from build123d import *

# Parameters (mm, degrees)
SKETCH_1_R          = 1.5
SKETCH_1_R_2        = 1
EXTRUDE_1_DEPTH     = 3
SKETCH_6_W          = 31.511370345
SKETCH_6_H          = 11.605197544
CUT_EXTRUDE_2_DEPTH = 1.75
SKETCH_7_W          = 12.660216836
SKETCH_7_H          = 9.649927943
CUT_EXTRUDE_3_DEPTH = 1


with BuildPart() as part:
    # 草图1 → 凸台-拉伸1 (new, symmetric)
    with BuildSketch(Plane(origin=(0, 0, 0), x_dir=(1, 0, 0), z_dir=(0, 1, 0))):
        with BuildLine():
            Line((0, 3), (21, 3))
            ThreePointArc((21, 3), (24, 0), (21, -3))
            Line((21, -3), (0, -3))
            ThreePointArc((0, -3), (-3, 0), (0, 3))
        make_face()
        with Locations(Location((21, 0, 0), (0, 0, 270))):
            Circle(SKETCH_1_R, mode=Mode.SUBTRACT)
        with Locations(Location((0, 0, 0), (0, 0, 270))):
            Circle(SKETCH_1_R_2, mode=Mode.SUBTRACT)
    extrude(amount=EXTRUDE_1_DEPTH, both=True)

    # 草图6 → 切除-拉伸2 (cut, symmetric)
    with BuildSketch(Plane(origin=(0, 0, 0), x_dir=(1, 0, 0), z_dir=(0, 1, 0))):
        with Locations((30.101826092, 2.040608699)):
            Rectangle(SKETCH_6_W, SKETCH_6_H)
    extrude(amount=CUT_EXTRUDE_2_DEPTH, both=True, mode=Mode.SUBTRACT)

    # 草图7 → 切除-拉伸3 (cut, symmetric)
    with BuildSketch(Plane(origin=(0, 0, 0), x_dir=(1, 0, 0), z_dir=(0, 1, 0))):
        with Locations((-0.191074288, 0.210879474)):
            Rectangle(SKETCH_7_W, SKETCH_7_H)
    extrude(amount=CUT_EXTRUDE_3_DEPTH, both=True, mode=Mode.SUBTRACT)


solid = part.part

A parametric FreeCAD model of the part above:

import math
import FreeCAD as App
import Part
import Sketcher
Q = App.Units.Quantity

doc = App.newDocument("Part")
body = doc.addObject("PartDesign::Body", "Body")

sketch1 = body.newObject("Sketcher::SketchObject", "Sketch")
sketch1.AttachmentSupport = (doc.getObject("XZ_Plane"), [""])
sketch1.MapMode = "FlatFace"
sketch1.addGeometry([
    Part.LineSegment(App.Vector(21, -3, 0), App.Vector(0, -3, 0)),
    Part.ArcOfCircle(Part.Circle(App.Vector(0, 0, 0), App.Vector(0, 0, 1), 3), math.radians(90), math.radians(270)),
    Part.LineSegment(App.Vector(0, 3, 0), App.Vector(21, 3, 0)),
    Part.ArcOfCircle(Part.Circle(App.Vector(21, 0, 0), App.Vector(0, 0, 1), 3), math.radians(-90), math.radians(90)),
    Part.Circle(App.Vector(21, 0, 0), App.Vector(0, 0, 1), 1.5),
    Part.Circle(App.Vector(0, 0, 0), App.Vector(0, 0, 1), 1),
], False)
sketch1.addConstraint([
    Sketcher.Constraint("Tangent", 0, 2, 1, 2),
    Sketcher.Constraint("Tangent", 1, 1, 2, 1),
    Sketcher.Constraint("Tangent", 2, 2, 3, 2),
    Sketcher.Constraint("Tangent", 3, 1, 0, 1),
    Sketcher.Constraint("Horizontal", 0),
    Sketcher.Constraint("Horizontal", 2),
    Sketcher.Constraint("Coincident", 1, 3, -1, 1),
    Sketcher.Constraint("Coincident", 5, 3, -1, 1),
    Sketcher.Constraint("Coincident", 4, 3, 3, 3),
    Sketcher.Constraint("Diameter", 4, Q("3 mm")),
    Sketcher.Constraint("Diameter", 5, Q("2 mm")),
    Sketcher.Constraint("Radius", 1, Q("3 mm")),
    Sketcher.Constraint("DistanceX", 0, 2, 0, 1, Q("21 mm")),
])
pad1 = body.newObject("PartDesign::Pad", "Pad")
pad1.Profile = sketch1
pad1.Length = 6
pad1.Midplane = True

sketch2 = body.newObject("Sketcher::SketchObject", "Sketch001")
sketch2.AttachmentSupport = (doc.getObject("XZ_Plane"), [""])
sketch2.MapMode = "FlatFace"
sketch2.addGeometry([
    Part.LineSegment(App.Vector(14, -8, 0), App.Vector(14, 4, 0)),
    Part.LineSegment(App.Vector(14, 4, 0), App.Vector(46, 4, 0)),
    Part.LineSegment(App.Vector(46, 4, 0), App.Vector(46, -8, 0)),
    Part.LineSegment(App.Vector(46, -8, 0), App.Vector(14, -8, 0)),
], False)
sketch2.addConstraint([
    Sketcher.Constraint("Coincident", 0, 2, 1, 1),
    Sketcher.Constraint("Coincident", 1, 2, 2, 1),
    Sketcher.Constraint("Coincident", 2, 2, 3, 1),
    Sketcher.Constraint("Coincident", 3, 2, 0, 1),
    Sketcher.Constraint("Vertical", 0),
    Sketcher.Constraint("Horizontal", 1),
    Sketcher.Constraint("Vertical", 2),
    Sketcher.Constraint("Horizontal", 3),
    Sketcher.Constraint("DistanceX", 1, 1, 1, 2, Q("31.51137 mm")),
    Sketcher.Constraint("DistanceY", 0, 1, 0, 2, Q("11.605198 mm")),
    Sketcher.Constraint("DistanceX", -1, 1, 0, 2, Q("14.346141 mm")),
    Sketcher.Constraint("DistanceY", -1, 1, 0, 2, Q("3.76199 mm")),
])
pocket1 = body.newObject("PartDesign::Pocket", "Pocket")
pocket1.Profile = sketch2
pocket1.Length = 3.5
pocket1.Midplane = True

sketch3 = body.newObject("Sketcher::SketchObject", "Sketch002")
sketch3.AttachmentSupport = (doc.getObject("XZ_Plane"), [""])
sketch3.MapMode = "FlatFace"
sketch3.addGeometry([
    Part.LineSegment(App.Vector(-7, -5, 0), App.Vector(-7, 5, 0)),
    Part.LineSegment(App.Vector(-7, 5, 0), App.Vector(6, 5, 0)),
    Part.LineSegment(App.Vector(6, 5, 0), App.Vector(6, -5, 0)),
    Part.LineSegment(App.Vector(6, -5, 0), App.Vector(-7, -5, 0)),
], False)
sketch3.addConstraint([
    Sketcher.Constraint("Coincident", 0, 2, 1, 1),
    Sketcher.Constraint("Coincident", 1, 2, 2, 1),
    Sketcher.Constraint("Coincident", 2, 2, 3, 1),
    Sketcher.Constraint("Coincident", 3, 2, 0, 1),
    Sketcher.Constraint("Vertical", 0),
    Sketcher.Constraint("Horizontal", 1),
    Sketcher.Constraint("Vertical", 2),
    Sketcher.Constraint("Horizontal", 3),
    Sketcher.Constraint("DistanceX", 1, 1, 1, 2, Q("12.660217 mm")),
    Sketcher.Constraint("DistanceY", 0, 1, 0, 2, Q("9.649928 mm")),
    Sketcher.Constraint("DistanceX", 0, 2, -1, 1, Q("6.521183 mm")),
    Sketcher.Constraint("DistanceY", -1, 1, 0, 2, Q("4.614084 mm")),
])
pocket2 = body.newObject("PartDesign::Pocket", "Pocket001")
pocket2.Profile = sketch3
pocket2.Length = 2
pocket2.Midplane = True

doc.recompute()
